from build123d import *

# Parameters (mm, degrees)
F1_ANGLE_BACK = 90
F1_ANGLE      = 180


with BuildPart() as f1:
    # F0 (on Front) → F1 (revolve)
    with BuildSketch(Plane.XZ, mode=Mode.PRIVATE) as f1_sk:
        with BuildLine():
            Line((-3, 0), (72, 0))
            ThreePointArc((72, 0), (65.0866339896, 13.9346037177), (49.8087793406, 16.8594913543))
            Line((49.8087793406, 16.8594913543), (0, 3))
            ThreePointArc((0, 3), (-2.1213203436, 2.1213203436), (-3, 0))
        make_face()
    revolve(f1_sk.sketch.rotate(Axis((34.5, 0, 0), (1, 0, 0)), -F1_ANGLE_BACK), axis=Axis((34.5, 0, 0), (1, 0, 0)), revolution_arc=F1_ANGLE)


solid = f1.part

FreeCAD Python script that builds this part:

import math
import FreeCAD as App
import Part
import Sketcher
from FreeCAD import Vector
Q = App.Units.Quantity

doc = App.newDocument("Part")
params = doc.addObject("Spreadsheet::Sheet", "Params")
for row, (alias, value) in enumerate([
    ("sketch1_radius", "3 mm"),
    ("sketch1_radius2", "17.5 mm"),
    ("sketch1_width", "75 mm"),
    ("revolution_angle", "180 deg"),
], start=1):
    params.set(f"A{row}", alias)
    params.set(f"B{row}", "=" + value)
    params.setAlias(f"B{row}", alias)

body = doc.addObject("PartDesign::Body", "Body")

sketch1 = doc.addObject("Sketcher::SketchObject", "Sketch")
body.addObject(sketch1)
sketch1.AttachmentSupport = (doc.XY_Plane, [""])
sketch1.MapMode = "FlatFace"
sketch1.addGeometry([
    Part.LineSegment(Vector(-3, 0, 0), Vector(72, 0, 0)),
    Part.ArcOfCircle(Part.Circle(Vector(54.5, 0, 0), Vector(0, 0, 1), 17.5), math.radians(0), math.radians(106)),
    Part.LineSegment(Vector(49.8, 16.9, 0), Vector(0, 3, 0)),
    Part.ArcOfCircle(Part.Circle(Vector(0, 0, 0), Vector(0, 0, 1), 3), math.radians(90), math.radians(180)),
], False)
sketch1.addConstraint([
    Sketcher.Constraint("Coincident", 0, 2, 1, 1),
    Sketcher.Constraint("Tangent", 1, 2, 2, 1),
    Sketcher.Constraint("Coincident", 2, 2, 3, 1),
    Sketcher.Constraint("Coincident", 3, 2, 0, 1),
    Sketcher.Constraint("Horizontal", 0),
    Sketcher.Constraint("Coincident", 3, 3, -1, 1),
    Sketcher.Constraint("PointOnObject", 1, 3, -1),
    Sketcher.Constraint("PointOnObject", 0, 2, -1),
    Sketcher.Constraint("PointOnObject", 2, 2, -2),
    Sketcher.Constraint("Radius", 3, Q("3 mm")),
    Sketcher.Constraint("Radius", 1, Q("17.5 mm")),
    Sketcher.Constraint("DistanceX", 0, 1, 0, 2, Q("75 mm")),
])
sketch1.setExpression("Constraints[9]", "Params.sketch1_radius")
sketch1.setExpression("Constraints[10]", "Params.sketch1_radius2")
sketch1.setExpression("Constraints[11]", "Params.sketch1_width")
revolution = doc.addObject("PartDesign::Revolution", "Revolution")
body.addObject(revolution)
revolution.Profile = sketch1
revolution.ReferenceAxis = (sketch1, ["H_Axis"])
revolution.setExpression("Angle", "Params.revolution_angle")

doc.recompute()
